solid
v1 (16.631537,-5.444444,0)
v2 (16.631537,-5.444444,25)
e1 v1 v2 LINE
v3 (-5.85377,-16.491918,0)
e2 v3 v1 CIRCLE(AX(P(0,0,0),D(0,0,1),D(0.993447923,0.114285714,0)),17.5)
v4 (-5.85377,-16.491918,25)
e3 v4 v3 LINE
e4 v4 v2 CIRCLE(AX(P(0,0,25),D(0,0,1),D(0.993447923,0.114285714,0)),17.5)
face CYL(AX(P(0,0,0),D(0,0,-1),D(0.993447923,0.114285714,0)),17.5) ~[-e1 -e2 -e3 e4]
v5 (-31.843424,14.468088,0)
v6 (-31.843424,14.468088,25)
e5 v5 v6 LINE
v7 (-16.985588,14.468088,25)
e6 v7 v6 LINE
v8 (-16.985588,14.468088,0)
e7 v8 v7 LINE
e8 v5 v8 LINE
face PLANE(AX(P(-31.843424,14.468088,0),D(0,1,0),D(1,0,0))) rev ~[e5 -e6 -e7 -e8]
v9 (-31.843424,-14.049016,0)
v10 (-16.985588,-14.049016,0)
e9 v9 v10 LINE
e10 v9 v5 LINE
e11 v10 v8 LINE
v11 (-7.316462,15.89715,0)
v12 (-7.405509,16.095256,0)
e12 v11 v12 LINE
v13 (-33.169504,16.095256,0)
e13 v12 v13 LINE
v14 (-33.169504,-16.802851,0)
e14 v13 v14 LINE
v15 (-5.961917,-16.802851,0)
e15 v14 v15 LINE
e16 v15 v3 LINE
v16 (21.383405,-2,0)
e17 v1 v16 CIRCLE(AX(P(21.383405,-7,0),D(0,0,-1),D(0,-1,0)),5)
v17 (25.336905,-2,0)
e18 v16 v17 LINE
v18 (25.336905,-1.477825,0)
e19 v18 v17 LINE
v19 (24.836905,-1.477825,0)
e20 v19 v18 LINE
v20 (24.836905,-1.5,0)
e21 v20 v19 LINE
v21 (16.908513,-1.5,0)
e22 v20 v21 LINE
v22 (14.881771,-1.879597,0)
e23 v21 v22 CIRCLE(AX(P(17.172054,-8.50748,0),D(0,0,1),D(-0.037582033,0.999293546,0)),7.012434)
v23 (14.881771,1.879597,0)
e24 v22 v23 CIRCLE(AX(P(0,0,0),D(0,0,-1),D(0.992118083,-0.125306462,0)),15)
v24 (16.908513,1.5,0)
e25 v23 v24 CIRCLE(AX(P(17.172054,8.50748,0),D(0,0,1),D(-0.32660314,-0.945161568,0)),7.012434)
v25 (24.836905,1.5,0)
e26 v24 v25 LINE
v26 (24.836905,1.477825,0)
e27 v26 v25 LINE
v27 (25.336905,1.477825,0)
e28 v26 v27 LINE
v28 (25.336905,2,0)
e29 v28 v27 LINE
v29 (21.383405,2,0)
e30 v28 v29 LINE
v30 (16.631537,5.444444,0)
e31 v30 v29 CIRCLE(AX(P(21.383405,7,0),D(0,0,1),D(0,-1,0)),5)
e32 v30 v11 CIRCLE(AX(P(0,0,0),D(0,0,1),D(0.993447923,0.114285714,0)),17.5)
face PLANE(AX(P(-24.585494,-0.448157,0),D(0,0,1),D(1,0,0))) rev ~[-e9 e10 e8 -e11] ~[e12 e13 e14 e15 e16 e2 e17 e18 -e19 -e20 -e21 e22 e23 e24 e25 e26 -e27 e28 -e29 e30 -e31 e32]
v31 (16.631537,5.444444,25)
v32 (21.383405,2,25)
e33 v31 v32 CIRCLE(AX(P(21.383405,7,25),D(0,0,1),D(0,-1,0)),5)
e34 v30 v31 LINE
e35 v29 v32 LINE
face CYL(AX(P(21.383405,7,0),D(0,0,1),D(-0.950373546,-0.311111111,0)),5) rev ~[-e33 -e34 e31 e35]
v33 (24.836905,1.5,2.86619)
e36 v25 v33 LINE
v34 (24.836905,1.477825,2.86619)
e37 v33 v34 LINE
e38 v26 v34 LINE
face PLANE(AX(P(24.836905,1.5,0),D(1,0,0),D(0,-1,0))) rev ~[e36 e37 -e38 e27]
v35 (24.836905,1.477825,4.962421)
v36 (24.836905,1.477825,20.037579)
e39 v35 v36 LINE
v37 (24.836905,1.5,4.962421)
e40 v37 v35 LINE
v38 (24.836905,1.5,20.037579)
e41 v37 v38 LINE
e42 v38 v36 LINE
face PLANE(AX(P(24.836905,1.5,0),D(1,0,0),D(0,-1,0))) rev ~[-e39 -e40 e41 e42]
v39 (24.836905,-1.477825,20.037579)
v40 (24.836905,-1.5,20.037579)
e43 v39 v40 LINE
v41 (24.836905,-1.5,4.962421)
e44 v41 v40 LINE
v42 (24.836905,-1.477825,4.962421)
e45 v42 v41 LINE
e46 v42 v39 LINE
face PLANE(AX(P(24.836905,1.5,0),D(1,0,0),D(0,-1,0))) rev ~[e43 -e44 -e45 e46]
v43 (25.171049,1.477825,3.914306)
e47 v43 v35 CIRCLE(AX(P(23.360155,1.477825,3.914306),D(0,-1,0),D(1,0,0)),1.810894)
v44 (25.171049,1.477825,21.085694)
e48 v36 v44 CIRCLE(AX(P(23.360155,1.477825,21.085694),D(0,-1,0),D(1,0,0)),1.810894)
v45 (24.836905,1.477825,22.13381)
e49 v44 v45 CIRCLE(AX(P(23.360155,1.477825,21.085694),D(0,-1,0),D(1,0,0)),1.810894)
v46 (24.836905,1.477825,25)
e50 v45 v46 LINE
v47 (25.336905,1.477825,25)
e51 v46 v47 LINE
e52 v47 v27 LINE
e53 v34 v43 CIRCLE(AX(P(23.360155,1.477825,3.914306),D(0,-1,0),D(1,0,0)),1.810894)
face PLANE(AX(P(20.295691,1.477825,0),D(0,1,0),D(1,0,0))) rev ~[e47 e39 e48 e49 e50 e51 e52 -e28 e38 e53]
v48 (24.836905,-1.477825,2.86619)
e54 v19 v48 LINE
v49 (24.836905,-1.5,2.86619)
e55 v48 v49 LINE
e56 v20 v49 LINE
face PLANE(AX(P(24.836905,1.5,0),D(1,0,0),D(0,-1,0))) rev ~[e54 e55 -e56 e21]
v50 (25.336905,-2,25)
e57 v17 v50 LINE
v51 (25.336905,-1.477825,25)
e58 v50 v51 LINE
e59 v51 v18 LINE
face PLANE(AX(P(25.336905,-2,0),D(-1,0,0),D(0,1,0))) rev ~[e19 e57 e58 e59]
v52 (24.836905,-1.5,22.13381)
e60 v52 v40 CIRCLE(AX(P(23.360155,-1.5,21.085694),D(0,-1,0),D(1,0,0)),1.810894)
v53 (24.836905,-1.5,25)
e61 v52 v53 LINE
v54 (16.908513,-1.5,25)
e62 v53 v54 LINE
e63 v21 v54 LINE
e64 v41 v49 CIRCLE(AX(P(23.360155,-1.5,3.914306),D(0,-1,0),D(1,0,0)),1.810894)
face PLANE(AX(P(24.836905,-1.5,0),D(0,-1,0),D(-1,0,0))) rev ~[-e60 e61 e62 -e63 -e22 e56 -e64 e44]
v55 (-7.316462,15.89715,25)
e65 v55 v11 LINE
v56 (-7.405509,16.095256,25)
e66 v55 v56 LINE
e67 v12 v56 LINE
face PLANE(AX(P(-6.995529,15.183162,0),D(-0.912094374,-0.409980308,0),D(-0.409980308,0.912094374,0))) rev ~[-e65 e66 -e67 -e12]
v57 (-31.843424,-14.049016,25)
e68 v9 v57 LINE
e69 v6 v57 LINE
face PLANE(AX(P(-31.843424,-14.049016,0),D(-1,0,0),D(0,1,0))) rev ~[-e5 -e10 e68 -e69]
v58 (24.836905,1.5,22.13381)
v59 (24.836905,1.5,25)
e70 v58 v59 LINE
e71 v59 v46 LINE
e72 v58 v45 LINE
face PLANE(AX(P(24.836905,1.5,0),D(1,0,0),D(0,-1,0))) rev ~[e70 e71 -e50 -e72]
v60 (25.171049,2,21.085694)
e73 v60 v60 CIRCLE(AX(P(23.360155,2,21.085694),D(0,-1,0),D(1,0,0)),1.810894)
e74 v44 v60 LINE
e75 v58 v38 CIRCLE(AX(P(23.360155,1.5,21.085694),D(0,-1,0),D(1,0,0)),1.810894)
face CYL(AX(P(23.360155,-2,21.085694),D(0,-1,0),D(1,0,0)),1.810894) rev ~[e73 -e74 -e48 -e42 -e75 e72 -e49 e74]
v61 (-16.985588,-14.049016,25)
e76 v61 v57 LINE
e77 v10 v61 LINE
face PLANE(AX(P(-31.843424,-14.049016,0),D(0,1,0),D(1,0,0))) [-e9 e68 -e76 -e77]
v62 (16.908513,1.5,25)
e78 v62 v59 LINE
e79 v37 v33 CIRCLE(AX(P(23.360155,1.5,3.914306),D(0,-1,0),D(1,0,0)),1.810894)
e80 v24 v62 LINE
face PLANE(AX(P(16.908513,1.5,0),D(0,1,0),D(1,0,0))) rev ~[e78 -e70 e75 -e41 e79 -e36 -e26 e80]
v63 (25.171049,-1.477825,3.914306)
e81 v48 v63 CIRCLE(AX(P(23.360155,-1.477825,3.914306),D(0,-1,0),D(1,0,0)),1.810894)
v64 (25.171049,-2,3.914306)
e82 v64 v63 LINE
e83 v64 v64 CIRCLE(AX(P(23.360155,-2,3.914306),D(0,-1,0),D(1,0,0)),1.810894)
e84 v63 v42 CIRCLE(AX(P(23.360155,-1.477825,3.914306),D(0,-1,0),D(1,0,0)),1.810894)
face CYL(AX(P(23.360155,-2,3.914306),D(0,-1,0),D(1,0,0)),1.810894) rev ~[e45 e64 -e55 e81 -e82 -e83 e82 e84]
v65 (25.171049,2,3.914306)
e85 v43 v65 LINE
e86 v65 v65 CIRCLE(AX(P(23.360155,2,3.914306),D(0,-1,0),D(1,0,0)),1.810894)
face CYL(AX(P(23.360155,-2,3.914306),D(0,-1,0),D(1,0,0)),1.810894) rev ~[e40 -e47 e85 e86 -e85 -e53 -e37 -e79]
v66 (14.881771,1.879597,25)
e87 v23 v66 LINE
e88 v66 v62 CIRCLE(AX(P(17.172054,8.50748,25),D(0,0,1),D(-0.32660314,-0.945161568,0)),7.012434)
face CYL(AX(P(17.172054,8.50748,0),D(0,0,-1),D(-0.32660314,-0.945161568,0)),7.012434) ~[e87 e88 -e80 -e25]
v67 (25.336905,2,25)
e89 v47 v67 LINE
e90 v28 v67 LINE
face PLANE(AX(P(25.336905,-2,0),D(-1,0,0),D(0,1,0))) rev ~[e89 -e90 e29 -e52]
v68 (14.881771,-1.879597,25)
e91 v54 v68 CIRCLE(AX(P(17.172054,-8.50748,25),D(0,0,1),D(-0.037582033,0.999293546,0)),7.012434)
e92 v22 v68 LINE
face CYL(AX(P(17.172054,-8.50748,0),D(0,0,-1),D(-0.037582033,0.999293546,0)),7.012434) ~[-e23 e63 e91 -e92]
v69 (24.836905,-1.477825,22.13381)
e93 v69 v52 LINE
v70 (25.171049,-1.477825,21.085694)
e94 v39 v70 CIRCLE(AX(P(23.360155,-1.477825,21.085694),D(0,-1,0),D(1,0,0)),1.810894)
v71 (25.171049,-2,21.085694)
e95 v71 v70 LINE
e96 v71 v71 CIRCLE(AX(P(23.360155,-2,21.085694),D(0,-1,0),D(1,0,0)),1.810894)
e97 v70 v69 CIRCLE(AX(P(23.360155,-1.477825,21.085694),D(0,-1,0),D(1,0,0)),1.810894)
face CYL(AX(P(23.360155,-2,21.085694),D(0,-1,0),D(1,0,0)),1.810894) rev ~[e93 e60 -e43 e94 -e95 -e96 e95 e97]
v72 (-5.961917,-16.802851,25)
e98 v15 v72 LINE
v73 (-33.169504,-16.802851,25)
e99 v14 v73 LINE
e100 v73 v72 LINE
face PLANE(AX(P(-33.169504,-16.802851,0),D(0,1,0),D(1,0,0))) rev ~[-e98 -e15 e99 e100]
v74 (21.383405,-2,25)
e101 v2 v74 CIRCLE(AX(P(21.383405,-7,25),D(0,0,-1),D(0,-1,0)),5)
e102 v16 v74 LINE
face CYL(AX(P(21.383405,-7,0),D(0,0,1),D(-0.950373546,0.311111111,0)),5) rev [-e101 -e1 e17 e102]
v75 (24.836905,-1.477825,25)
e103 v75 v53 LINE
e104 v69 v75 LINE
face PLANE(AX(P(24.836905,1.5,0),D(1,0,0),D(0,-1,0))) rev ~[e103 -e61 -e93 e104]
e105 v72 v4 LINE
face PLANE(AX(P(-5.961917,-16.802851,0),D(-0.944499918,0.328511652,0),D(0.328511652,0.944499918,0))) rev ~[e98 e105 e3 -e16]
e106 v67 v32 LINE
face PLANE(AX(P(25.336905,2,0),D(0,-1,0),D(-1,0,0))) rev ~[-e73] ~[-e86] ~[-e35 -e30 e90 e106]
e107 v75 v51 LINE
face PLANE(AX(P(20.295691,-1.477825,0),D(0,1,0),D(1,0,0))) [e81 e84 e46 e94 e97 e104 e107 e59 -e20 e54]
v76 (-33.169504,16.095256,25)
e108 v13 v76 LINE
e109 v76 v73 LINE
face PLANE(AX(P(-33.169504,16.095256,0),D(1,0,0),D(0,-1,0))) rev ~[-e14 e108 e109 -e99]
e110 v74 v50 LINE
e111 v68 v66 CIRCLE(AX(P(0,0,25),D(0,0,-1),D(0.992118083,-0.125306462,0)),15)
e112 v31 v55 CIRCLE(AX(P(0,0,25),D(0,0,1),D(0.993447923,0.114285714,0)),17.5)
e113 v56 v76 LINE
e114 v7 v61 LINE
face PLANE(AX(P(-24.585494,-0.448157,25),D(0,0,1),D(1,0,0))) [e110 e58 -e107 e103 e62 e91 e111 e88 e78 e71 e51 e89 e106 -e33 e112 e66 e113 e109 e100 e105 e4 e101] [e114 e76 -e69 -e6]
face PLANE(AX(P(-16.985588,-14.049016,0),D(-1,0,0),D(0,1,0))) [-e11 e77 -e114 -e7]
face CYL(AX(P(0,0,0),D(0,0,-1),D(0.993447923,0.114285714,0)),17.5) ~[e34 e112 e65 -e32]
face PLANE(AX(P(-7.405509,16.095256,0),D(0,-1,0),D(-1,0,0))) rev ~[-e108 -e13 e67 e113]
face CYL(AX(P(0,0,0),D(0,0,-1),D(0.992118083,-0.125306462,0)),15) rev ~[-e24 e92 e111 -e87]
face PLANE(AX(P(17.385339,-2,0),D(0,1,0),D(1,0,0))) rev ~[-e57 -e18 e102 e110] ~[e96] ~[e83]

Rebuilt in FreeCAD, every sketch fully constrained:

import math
import FreeCAD as App
import Part
import Sketcher


def edges_at(feature, points):
    """Names of the edges that pass closest to the given points."""
    edges = feature.Shape.Edges
    near = lambda p: min(range(len(edges)), key=lambda i: edges[i].distToShape(Part.Vertex(*p))[0])
    return sorted({f"Edge{near(p) + 1}" for p in points})


def add_polygon(sketch, points):
    """Adds a closed chain of lines whose ends are joined by coincident constraints."""
    first, n = sketch.GeometryCount, len(points)
    for a, b in zip(points, points[1:] + points[:1]):
        sketch.addGeometry(Part.LineSegment(App.Vector(*a, 0), App.Vector(*b, 0)), False)
    for i in range(n):
        sketch.addConstraint(Sketcher.Constraint("Coincident", first + i, 2, first + (i + 1) % n, 1))

doc = App.newDocument("Part")
body = doc.addObject("PartDesign::Body", "Body")

sketch1 = body.newObject("Sketcher::SketchObject", "Sketch")
sketch1.AttachmentSupport = (doc.getObject("XZ_Plane"), [""])
sketch1.MapMode = "FlatFace"
add_polygon(sketch1, [(0, 33), (0, -28), (44, -28), (44, -20), (8, -20), (8, 26), (44, 26), (44, 33)])
sketch1.addConstraint(Sketcher.Constraint("Vertical", 0))
sketch1.addConstraint(Sketcher.Constraint("Horizontal", 1))
sketch1.addConstraint(Sketcher.Constraint("Vertical", 2))
sketch1.addConstraint(Sketcher.Constraint("Horizontal", 3))
sketch1.addConstraint(Sketcher.Constraint("Vertical", 4))
sketch1.addConstraint(Sketcher.Constraint("Horizontal", 5))
sketch1.addConstraint(Sketcher.Constraint("Vertical", 6))
sketch1.addConstraint(Sketcher.Constraint("Horizontal", 7))
sketch1.addConstraint(Sketcher.Constraint("PointOnObject", 0, 2, -2))
sketch1.addConstraint(Sketcher.Constraint("Vertical", 2, 2, 5, 2))
sketch1.addConstraint(Sketcher.Constraint("DistanceY", 4, 1, 4, 2, 46.673501))
sketch1.addConstraint(Sketcher.Constraint("DistanceX", 1, 1, 1, 2, 43.586344))
sketch1.addConstraint(Sketcher.Constraint("DistanceX", 3, 2, 3, 1, 35.592407))
sketch1.addConstraint(Sketcher.Constraint("DistanceY", 0, 2, 0, 1, 60.848765))
sketch1.addConstraint(Sketcher.Constraint("DistanceY", 2, 1, 2, 2, 7.981338))
sketch1.addConstraint(Sketcher.Constraint("DistanceY", 2, 2, -1, 1, 20.34916))
pad1 = body.newObject("PartDesign::Pad", "Pad")
pad1.Profile = sketch1
pad1.Length = 80

sketch2 = body.newObject("Sketcher::SketchObject", "Sketch001")
sketch2.AttachmentSupport = (doc.getObject("XY_Plane"), [""])
sketch2.MapMode = "FlatFace"
sketch2.AttachmentOffset = App.Placement(App.Vector(0, 0, 32.518268), App.Rotation())
sketch2.addGeometry(Part.Circle(App.Vector(32, -38, 0), App.Vector(0, 0, 1), 9), False)
sketch2.addConstraint(Sketcher.Constraint("Diameter", 0, 18.976054))
sketch2.addConstraint(Sketcher.Constraint("DistanceX", -1, 1, 0, 3, 32.24913))
sketch2.addConstraint(Sketcher.Constraint("DistanceY", 0, 3, -1, 1, 37.828382))
pad2 = body.newObject("PartDesign::Pad", "Pad001")
pad2.Profile = sketch2
pad2.Length = 600

sketch3 = body.newObject("Sketcher::SketchObject", "Sketch002")
sketch3.AttachmentSupport = (doc.getObject("XY_Plane"), [""])
sketch3.MapMode = "FlatFace"
sketch3.AttachmentOffset = App.Placement(App.Vector(0, 0, 632.518268), App.Rotation())
add_polygon(sketch3, [(20.9, -36.4), (20.9, -38.6), (25, -38.6), (25, -36.4)])
sketch3.addConstraint(Sketcher.Constraint("Vertical", 0))
sketch3.addConstraint(Sketcher.Constraint("Horizontal", 1))
sketch3.addConstraint(Sketcher.Constraint("Vertical", 2))
sketch3.addConstraint(Sketcher.Constraint("Horizontal", 3))
sketch3.addConstraint(Sketcher.Constraint("DistanceY", 0, 2, 0, 1, 2.207652))
sketch3.addConstraint(Sketcher.Constraint("DistanceX", 1, 1, 1, 2, 4.054703))
sketch3.addConstraint(Sketcher.Constraint("DistanceX", -1, 1, 0, 2, 20.901963))
sketch3.addConstraint(Sketcher.Constraint("DistanceY", 0, 2, -1, 1, 38.616896))
pocket1 = body.newObject("PartDesign::Pocket", "Pocket")
pocket1.Profile = sketch3
pocket1.Length = 15

sketch4 = body.newObject("Sketcher::SketchObject", "Sketch003")
sketch4.AttachmentSupport = (doc.getObject("XY_Plane"), [""])
sketch4.MapMode = "FlatFace"
sketch4.AttachmentOffset = App.Placement(App.Vector(0, 0, 632.518268), App.Rotation())
sketch4.addGeometry(Part.Circle(App.Vector(32, -38, 0), App.Vector(0, 0, 1), 8), False)
sketch4.addConstraint(Sketcher.Constraint("Diameter", 0, 16.0))
sketch4.addConstraint(Sketcher.Constraint("DistanceX", -1, 1, 0, 3, 32.24913))
sketch4.addConstraint(Sketcher.Constraint("DistanceY", 0, 3, -1, 1, 37.828382))
pocket2 = body.newObject("PartDesign::Pocket", "Pocket001")
pocket2.Profile = sketch4
pocket2.Length = 600
body2 = doc.addObject("PartDesign::Body", "Body001")

sketch5 = body2.newObject("Sketcher::SketchObject", "Sketch004")
sketch5.AttachmentSupport = (doc.getObject("XY_Plane001"), [""])
sketch5.MapMode = "FlatFace"
sketch5.AttachmentOffset = App.Placement(App.Vector(0, 0, 82.518268), App.Rotation())
sketch5.addGeometry(Part.Circle(App.Vector(32, -38, 0), App.Vector(0, 0, 1), 8), False)
sketch5.addConstraint(Sketcher.Constraint("Diameter", 0, 15.25))
sketch5.addConstraint(Sketcher.Constraint("DistanceX", -1, 1, 0, 3, 32.24913))
sketch5.addConstraint(Sketcher.Constraint("DistanceY", 0, 3, -1, 1, 37.828382))
pad3 = body2.newObject("PartDesign::Pad", "Pad002")
pad3.Profile = sketch5
pad3.Length = 570

sketch6 = body2.newObject("Sketcher::SketchObject", "Sketch005")
sketch6.AttachmentSupport = (doc.getObject("XY_Plane001"), [""])
sketch6.MapMode = "FlatFace"
sketch6.AttachmentOffset = App.Placement(App.Vector(0, 0, 652.518268), App.Rotation())
add_polygon(sketch6, [(30.95, -23.51), (30.95, -31.91), (31.44, -31.91), (31.44, -23.51)])
sketch6.addConstraint(Sketcher.Constraint("Vertical", 0))
sketch6.addConstraint(Sketcher.Constraint("Horizontal", 1))
sketch6.addConstraint(Sketcher.Constraint("Vertical", 2))
sketch6.addConstraint(Sketcher.Constraint("Horizontal", 3))
sketch6.addConstraint(Sketcher.Constraint("DistanceX", 1, 1, 1, 2, 0.48814))
sketch6.addConstraint(Sketcher.Constraint("DistanceY", 0, 2, 0, 1, 8.393029))
sketch6.addConstraint(Sketcher.Constraint("DistanceX", -1, 1, 0, 2, 30.949824))
sketch6.addConstraint(Sketcher.Constraint("DistanceY", 0, 2, -1, 1, 31.907383))
pad4 = body2.newObject("PartDesign::Pad", "Pad003")
pad4.Profile = sketch6
pad4.Length = 15
pad4.Reversed = True

sketch7 = body2.newObject("Sketcher::SketchObject", "Sketch006")
sketch7.AttachmentSupport = (doc.getObject("XY_Plane001"), [""])
sketch7.MapMode = "FlatFace"
sketch7.AttachmentOffset = App.Placement(App.Vector(0, 0, 652.518268), App.Rotation())
sketch7.addGeometry(Part.ArcOfCircle(Part.Circle(App.Vector(32.2, -37.8, 0), App.Vector(0, 0, 1), 7.6), math.radians(166), math.radians(360)), False)
sketch7.addGeometry(Part.ArcOfCircle(Part.Circle(App.Vector(32.2, -37.8, 0), App.Vector(0, 0, 1), 7.6), math.radians(0), math.radians(14.05)), False)
sketch7.addGeometry(Part.LineSegment(App.Vector(39.6, -36, 0), App.Vector(39.6, 264, 0)), False)
sketch7.addGeometry(Part.LineSegment(App.Vector(39.6, 264, 0), App.Vector(24.9, 264, 0)), False)
sketch7.addGeometry(Part.LineSegment(App.Vector(24.9, 264, 0), App.Vector(24.9, -36, 0)), False)
sketch7.addConstraint(Sketcher.Constraint("Tangent", 0, 2, 1, 1))
sketch7.addConstraint(Sketcher.Constraint("Coincident", 1, 2, 2, 1))
sketch7.addConstraint(Sketcher.Constraint("Coincident", 2, 2, 3, 1))
sketch7.addConstraint(Sketcher.Constraint("Coincident", 3, 2, 4, 1))
sketch7.addConstraint(Sketcher.Constraint("Coincident", 4, 2, 0, 1))
sketch7.addConstraint(Sketcher.Constraint("Vertical", 2))
sketch7.addConstraint(Sketcher.Constraint("Horizontal", 3))
sketch7.addConstraint(Sketcher.Constraint("Vertical", 4))
sketch7.addConstraint(Sketcher.Constraint("Equal", 0, 1))
sketch7.addConstraint(Sketcher.Constraint("Horizontal", 1, 3, 0, 2))
sketch7.addConstraint(Sketcher.Constraint("Horizontal", 1, 2, 4, 2))
sketch7.addConstraint(Sketcher.Constraint("DistanceY", 2, 1, 2, 2, 300.0))
sketch7.addConstraint(Sketcher.Constraint("Radius", 0, 7.625))
sketch7.addConstraint(Sketcher.Constraint("DistanceX", 3, 2, 3, 1, 14.793893))
sketch7.addConstraint(Sketcher.Constraint("DistanceX", -1, 1, 0, 3, 32.24913))
sketch7.addConstraint(Sketcher.Constraint("DistanceY", 1, 2, -1, 1, 35.977488))
pad5 = body2.newObject("PartDesign::Pad", "Pad004")
pad5.Profile = sketch7
pad5.Length = 25

sketch8 = body2.newObject("Sketcher::SketchObject", "Sketch007")
sketch8.AttachmentSupport = (doc.getObject("XY_Plane001"), [""])
sketch8.MapMode = "FlatFace"
sketch8.AttachmentOffset = App.Placement(App.Vector(0, 0, 677.518268), App.Rotation())
add_polygon(sketch8, [(155, 264), (-73, 264), (-73, -21), (155, -21)])
sketch8.addConstraint(Sketcher.Constraint("Horizontal", 0))
sketch8.addConstraint(Sketcher.Constraint("Vertical", 1))
sketch8.addConstraint(Sketcher.Constraint("Horizontal", 2))
sketch8.addConstraint(Sketcher.Constraint("Vertical", 3))
sketch8.addConstraint(Sketcher.Constraint("DistanceY", 1, 2, 1, 1, 285.0))
sketch8.addConstraint(Sketcher.Constraint("DistanceX", 0, 2, 0, 1, 227.493974))
sketch8.addConstraint(Sketcher.Constraint("DistanceX", 0, 2, -1, 1, 72.64179))
sketch8.addConstraint(Sketcher.Constraint("DistanceY", -1, 1, 0, 2, 264.022512))
pad6 = body2.newObject("PartDesign::Pad", "Pad005")
pad6.Profile = sketch8
pad6.Length = 50

sketch9 = body2.newObject("Sketcher::SketchObject", "Sketch008")
sketch9.AttachmentSupport = (doc.getObject("XZ_Plane001"), [""])
sketch9.MapMode = "FlatFace"
sketch9.AttachmentOffset = App.Placement(App.Vector(0, 0, 20.977488), App.Rotation())
add_polygon(sketch9, [(-53, 686), (155, 728), (-81, 737), (-73, 692)])
sketch9.addConstraint(Sketcher.Constraint("DistanceY", 2, 2, 1, 2, 44.396698))
sketch9.addConstraint(Sketcher.Constraint("DistanceX", 1, 2, 3, 2, 28.467402))
sketch9.addConstraint(Sketcher.Constraint("DistanceX", 2, 2, -1, 1, 72.64179))
sketch9.addConstraint(Sketcher.Constraint("DistanceY", -1, 1, 2, 2, 692.208529))
sketch9.addConstraint(Sketcher.Constraint("DistanceX", 1, 2, 0, 2, 236.059251))
sketch9.addConstraint(Sketcher.Constraint("DistanceY", 0, 2, 1, 2, 9.086959))
sketch9.addConstraint(Sketcher.Constraint("Distance", 0, 211.647942))
sketch9.addConstraint(Sketcher.Constraint("Distance", 2, 45.215382))
pocket3 = body2.newObject("PartDesign::Pocket", "Pocket002")
pocket3.Profile = sketch9
pocket3.Length = 295

sketch10 = body2.newObject("Sketcher::SketchObject", "Sketch009")
sketch10.AttachmentSupport = (doc.getObject("XZ_Plane001"), [""])
sketch10.MapMode = "FlatFace"
sketch10.AttachmentOffset = App.Placement(App.Vector(0, 0, -264.022512), App.Rotation())
add_polygon(sketch10, [(115, 700), (115, 693), (73, 693), (73, 700)])
sketch10.addConstraint(Sketcher.Constraint("Vertical", 0))
sketch10.addConstraint(Sketcher.Constraint("Horizontal", 1))
sketch10.addConstraint(Sketcher.Constraint("Vertical", 2))
sketch10.addConstraint(Sketcher.Constraint("Horizontal", 3))
sketch10.addConstraint(Sketcher.Constraint("DistanceX", 1, 2, 1, 1, 42.306095))
sketch10.addConstraint(Sketcher.Constraint("DistanceY", 0, 2, 0, 1, 7.062674))
sketch10.addConstraint(Sketcher.Constraint("DistanceX", -1, 1, 0, 2, 114.894658))
sketch10.addConstraint(Sketcher.Constraint("DistanceY", -1, 1, 2, 2, 700.186551))
pad7 = body2.newObject("PartDesign::Pad", "Pad006")
pad7.Profile = sketch10
pad7.Length = 25
pad7.Reversed = True

sketch11 = body2.newObject("Sketcher::SketchObject", "Sketch010")
sketch11.AttachmentSupport = (doc.getObject("XY_Plane001"), [""])
sketch11.MapMode = "FlatFace"
sketch11.AttachmentOffset = App.Placement(App.Vector(0, 0, 700.186551), App.Rotation())
add_polygon(sketch11, [(77, 284), (77, 268), (111, 268), (111, 284)])
sketch11.addConstraint(Sketcher.Constraint("Vertical", 0))
sketch11.addConstraint(Sketcher.Constraint("Horizontal", 1))
sketch11.addConstraint(Sketcher.Constraint("Vertical", 2))
sketch11.addConstraint(Sketcher.Constraint("Horizontal", 3))
sketch11.addConstraint(Sketcher.Constraint("DistanceY", 0, 2, 0, 1, 16.16624))
sketch11.addConstraint(Sketcher.Constraint("DistanceX", 1, 1, 1, 2, 33.682153))
sketch11.addConstraint(Sketcher.Constraint("DistanceX", -1, 1, 0, 2, 77.380203))
sketch11.addConstraint(Sketcher.Constraint("DistanceY", -1, 1, 0, 2, 268.286794))
pocket4 = body2.newObject("PartDesign::Pocket", "Pocket003")
pocket4.Profile = sketch11
pocket4.Length = 25
body3 = doc.addObject("PartDesign::Body", "Body002")

sketch12 = body3.newObject("Sketcher::SketchObject", "Sketch011")
sketch12.AttachmentSupport = (doc.getObject("YZ_Plane002"), [""])
sketch12.MapMode = "FlatFace"
sketch12.AttachmentOffset = App.Placement(App.Vector(0, 0, 43.586344), App.Rotation())
add_polygon(sketch12, [(-80, 33), (-80, -29), (0, -29), (0, 33)])
sketch12.addConstraint(Sketcher.Constraint("Vertical", 0))
sketch12.addConstraint(Sketcher.Constraint("Horizontal", 1))
sketch12.addConstraint(Sketcher.Constraint("Vertical", 2))
sketch12.addConstraint(Sketcher.Constraint("Horizontal", 3))
sketch12.addConstraint(Sketcher.Constraint("PointOnObject", 1, 2, -2))
sketch12.addConstraint(Sketcher.Constraint("DistanceX", 1, 1, 1, 2, 80.0))
sketch12.addConstraint(Sketcher.Constraint("DistanceY", 0, 2, 0, 1, 61.032292))
sketch12.addConstraint(Sketcher.Constraint("DistanceY", 0, 2, -1, 1, 28.514024))
pad8 = body3.newObject("PartDesign::Pad", "Pad007")
pad8.Profile = sketch12
pad8.Length = 10
body4 = doc.addObject("PartDesign::Body", "Body003")

sketch13 = body4.newObject("Sketcher::SketchObject", "Sketch012")
sketch13.AttachmentSupport = (doc.getObject("XY_Plane003"), [""])
sketch13.MapMode = "FlatFace"
sketch13.addGeometry(Part.ArcOfCircle(Part.Circle(App.Vector(0, 0, 0), App.Vector(0, 0, 1), 17.5), math.radians(7), math.radians(353)), False)
sketch13.addGeometry(Part.LineSegment(App.Vector(17.4, -2, 0), App.Vector(25.3, -2, 0)), False)
sketch13.addGeometry(Part.LineSegment(App.Vector(25.3, -2, 0), App.Vector(25.3, 2, 0)), False)
sketch13.addGeometry(Part.LineSegment(App.Vector(25.3, 2, 0), App.Vector(17.4, 2, 0)), False)
sketch13.addGeometry(Part.ArcOfCircle(Part.Circle(App.Vector(17.2, -8.5, 0), App.Vector(0, 0, 1), 7), math.radians(92.15), math.radians(109.06)), False)
sketch13.addGeometry(Part.ArcOfCircle(Part.Circle(App.Vector(0, 0, 0), App.Vector(0, 0, 1), 15), math.radians(7), math.radians(353)), False)
sketch13.addGeometry(Part.ArcOfCircle(Part.Circle(App.Vector(17.2, 8.5, 0), App.Vector(0, 0, 1), 7), math.radians(-109.06), math.radians(-92.15)), False)
sketch13.addGeometry(Part.LineSegment(App.Vector(16.9, 1.5, 0), App.Vector(24.8, 1.5, 0)), False)
sketch13.addGeometry(Part.LineSegment(App.Vector(24.8, 1.5, 0), App.Vector(24.8, -1.5, 0)), False)
sketch13.addGeometry(Part.LineSegment(App.Vector(24.8, -1.5, 0), App.Vector(16.9, -1.5, 0)), False)
sketch13.addConstraint(Sketcher.Constraint("Coincident", 0, 2, 1, 1))
sketch13.addConstraint(Sketcher.Constraint("Coincident", 1, 2, 2, 1))
sketch13.addConstraint(Sketcher.Constraint("Coincident", 2, 2, 3, 1))
sketch13.addConstraint(Sketcher.Constraint("Coincident", 3, 2, 0, 1))
sketch13.addConstraint(Sketcher.Constraint("Coincident", 4, 2, 5, 2))
sketch13.addConstraint(Sketcher.Constraint("Coincident", 5, 1, 6, 1))
sketch13.addConstraint(Sketcher.Constraint("Coincident", 6, 2, 7, 1))
sketch13.addConstraint(Sketcher.Constraint("Coincident", 7, 2, 8, 1))
sketch13.addConstraint(Sketcher.Constraint("Coincident", 8, 2, 9, 1))
sketch13.addConstraint(Sketcher.Constraint("Coincident", 9, 2, 4, 1))
sketch13.addConstraint(Sketcher.Constraint("Horizontal", 1))
sketch13.addConstraint(Sketcher.Constraint("Vertical", 2))
sketch13.addConstraint(Sketcher.Constraint("Horizontal", 3))
sketch13.addConstraint(Sketcher.Constraint("Horizontal", 7))
sketch13.addConstraint(Sketcher.Constraint("Vertical", 8))
sketch13.addConstraint(Sketcher.Constraint("Horizontal", 9))
sketch13.addConstraint(Sketcher.Constraint("Coincident", 0, 3, -1, 1))
sketch13.addConstraint(Sketcher.Constraint("Coincident", 5, 3, -1, 1))
sketch13.addConstraint(Sketcher.Constraint("Equal", 4, 6))
sketch13.addConstraint(Sketcher.Constraint("Symmetric", 4, 3, 6, 3, -1))
sketch13.addConstraint(Sketcher.Constraint("Vertical", 0, 2, 3, 2))
sketch13.addConstraint(Sketcher.Constraint("Vertical", 6, 2, 9, 2))
sketch13.addConstraint(Sketcher.Constraint("Radius", 5, 15.0))
sketch13.addConstraint(Sketcher.Constraint("Radius", 0, 17.5))
sketch13.addConstraint(Sketcher.Constraint("DistanceY", 2, 1, 2, 2, 4.0))
sketch13.addConstraint(Sketcher.Constraint("DistanceY", 8, 2, 8, 1, 3.0))
sketch13.addConstraint(Sketcher.Constraint("DistanceX", 7, 2, 2, 2, 0.5))
sketch13.addConstraint(Sketcher.Constraint("Radius", 4, 7.012434))
sketch13.addConstraint(Sketcher.Constraint("DistanceX", 1, 1, 1, 2, 7.951567))
sketch13.addConstraint(Sketcher.Constraint("DistanceX", 7, 1, 7, 2, 7.928393))
sketch13.addConstraint(Sketcher.Constraint("DistanceY", 4, 3, -1, 1, 8.50748))
pad9 = body4.newObject("PartDesign::Pad", "Pad008")
pad9.Profile = sketch13
pad9.Length = 25
doc.recompute()

fillet = body4.newObject("PartDesign::Fillet", "Fillet")
fillet.Base = (pad9, edges_at(pad9, [(17.385, -2, 12.5), (17.385, 2, 12.5)]))
fillet.Radius = 5

sketch14 = body4.newObject("Sketcher::SketchObject", "Sketch013")
sketch14.AttachmentSupport = (doc.getObject("XY_Plane003"), [""])
sketch14.MapMode = "FlatFace"
add_polygon(sketch14, [(20.3, 1.5), (20.3, -1.5), (29.5, -1.5), (29.5, 1.5)])
sketch14.addConstraint(Sketcher.Constraint("Vertical", 0))
sketch14.addConstraint(Sketcher.Constraint("Horizontal", 1))
sketch14.addConstraint(Sketcher.Constraint("Vertical", 2))
sketch14.addConstraint(Sketcher.Constraint("Horizontal", 3))
sketch14.addConstraint(Sketcher.Constraint("DistanceY", 0, 2, 0, 1, 2.955649))
sketch14.addConstraint(Sketcher.Constraint("DistanceX", 1, 1, 1, 2, 9.253275))
sketch14.addConstraint(Sketcher.Constraint("DistanceX", -1, 1, 0, 2, 20.295691))
sketch14.addConstraint(Sketcher.Constraint("DistanceY", 0, 2, -1, 1, 1.477825))
pocket5 = body4.newObject("PartDesign::Pocket", "Pocket004")
pocket5.Profile = sketch14
pocket5.Type = "ThroughAll"
pocket5.Midplane = True

sketch15 = body4.newObject("Sketcher::SketchObject", "Sketch014")
sketch15.AttachmentSupport = (doc.getObject("XZ_Plane003"), [""])
sketch15.MapMode = "FlatFace"
sketch15.AttachmentOffset = App.Placement(App.Vector(0, 0, 2), App.Rotation())
sketch15.addGeometry(Part.Circle(App.Vector(23.4, 21.1, 0), App.Vector(0, 0, 1), 1.8), False)
sketch15.addGeometry(Part.Circle(App.Vector(23.4, 3.9, 0), App.Vector(0, 0, 1), 1.8), False)
sketch15.addConstraint(Sketcher.Constraint("Equal", 0, 1))
sketch15.addConstraint(Sketcher.Constraint("Vertical", 0, 3, 1, 3))
sketch15.addConstraint(Sketcher.Constraint("Diameter", 0, 3.621788))
sketch15.addConstraint(Sketcher.Constraint("DistanceY", 1, 3, 0, 3, 17.171389))
sketch15.addConstraint(Sketcher.Constraint("DistanceX", -1, 1, 0, 3, 23.360155))
sketch15.addConstraint(Sketcher.Constraint("DistanceY", -1, 1, 0, 3, 21.085694))
pocket6 = body4.newObject("PartDesign::Pocket", "Pocket005")
pocket6.Profile = sketch15
pocket6.Length = 25

sketch16 = body4.newObject("Sketcher::SketchObject", "Sketch015")
sketch16.AttachmentSupport = (doc.getObject("XY_Plane003"), [""])
sketch16.MapMode = "FlatFace"
sketch16.addGeometry(Part.LineSegment(App.Vector(-33.17, -16.8, 0), App.Vector(-5.96, -16.8, 0)), False)
sketch16.addGeometry(Part.LineSegment(App.Vector(-5.96, -16.8, 0), App.Vector(-5.63, -15.86, 0)), False)
sketch16.addGeometry(Part.ArcOfCircle(Part.Circle(App.Vector(-0.14, -0.07, 0), App.Vector(0, 0, 1), 16.72), math.radians(116), math.radians(251)), False)
sketch16.addGeometry(Part.ArcOfCircle(Part.Circle(App.Vector(-0.14, -0.07, 0), App.Vector(0, 0, 1), 16.72), math.radians(114.2), math.radians(115.75)), False)
sketch16.addGeometry(Part.LineSegment(App.Vector(-7, 15.18, 0), App.Vector(-7.41, 16.1, 0)), False)
sketch16.addGeometry(Part.LineSegment(App.Vector(-7.41, 16.1, 0), App.Vector(-33.17, 16.1, 0)), False)
sketch16.addGeometry(Part.LineSegment(App.Vector(-33.17, 16.1, 0), App.Vector(-33.17, -16.8, 0)), False)
sketch16.addConstraint(Sketcher.Constraint("Coincident", 0, 2, 1, 1))
sketch16.addConstraint(Sketcher.Constraint("Coincident", 1, 2, 2, 2))
sketch16.addConstraint(Sketcher.Constraint("Tangent", 2, 1, 3, 2))
sketch16.addConstraint(Sketcher.Constraint("Coincident", 3, 1, 4, 1))
sketch16.addConstraint(Sketcher.Constraint("Coincident", 4, 2, 5, 1))
sketch16.addConstraint(Sketcher.Constraint("Coincident", 5, 2, 6, 1))
sketch16.addConstraint(Sketcher.Constraint("Coincident", 6, 2, 0, 1))
sketch16.addConstraint(Sketcher.Constraint("Horizontal", 0))
sketch16.addConstraint(Sketcher.Constraint("Horizontal", 5))
sketch16.addConstraint(Sketcher.Constraint("Vertical", 6))
sketch16.addConstraint(Sketcher.Constraint("Equal", 2, 3))
sketch16.addConstraint(Sketcher.Constraint("Vertical", 2, 1, 4, 2))
sketch16.addConstraint(Sketcher.Constraint("Equal", 1, 4))
sketch16.addConstraint(Sketcher.Constraint("Distance", 1, 1.0))
sketch16.addConstraint(Sketcher.Constraint("Radius", 2, 16.7196))
sketch16.addConstraint(Sketcher.Constraint("DistanceY", 0, 2, 1, 2, 0.9445))
sketch16.addConstraint(Sketcher.Constraint("DistanceX", 6, 2, 1, 2, 27.536099))
sketch16.addConstraint(Sketcher.Constraint("DistanceX", 5, 2, 5, 1, 25.763995))
sketch16.addConstraint(Sketcher.Constraint("DistanceY", 6, 2, 6, 1, 32.898107))
sketch16.addConstraint(Sketcher.Constraint("DistanceY", 2, 3, -1, 1, 0.066691))
sketch16.addConstraint(Sketcher.Constraint("DistanceX", 2, 1, -1, 1, 7.405509))
sketch16.addConstraint(Sketcher.Constraint("DistanceX", 3, 1, -1, 1, 6.995529))
pad10 = body4.newObject("PartDesign::Pad", "Pad009")
pad10.Profile = sketch16
pad10.Length = 25

sketch17 = body4.newObject("Sketcher::SketchObject", "Sketch016")
sketch17.AttachmentSupport = (doc.getObject("XY_Plane003"), [""])
sketch17.MapMode = "FlatFace"
add_polygon(sketch17, [(-32, 14), (-32, -14), (-17, -14), (-17, 14)])
sketch17.addConstraint(Sketcher.Constraint("Vertical", 0))
sketch17.addConstraint(Sketcher.Constraint("Horizontal", 1))
sketch17.addConstraint(Sketcher.Constraint("Vertical", 2))
sketch17.addConstraint(Sketcher.Constraint("Horizontal", 3))
sketch17.addConstraint(Sketcher.Constraint("DistanceX", 1, 1, 1, 2, 14.857836))
sketch17.addConstraint(Sketcher.Constraint("DistanceY", 0, 2, 0, 1, 28.517104))
sketch17.addConstraint(Sketcher.Constraint("DistanceX", 0, 2, -1, 1, 31.843424))
sketch17.addConstraint(Sketcher.Constraint("DistanceY", 0, 2, -1, 1, 14.049016))
pocket7 = body4.newObject("PartDesign::Pocket", "Pocket006")
pocket7.Profile = sketch17
pocket7.Length = 40
pocket7.Reversed = True
body.Visibility = False
body2.Visibility = False
body3.Visibility = False

doc.recompute()
